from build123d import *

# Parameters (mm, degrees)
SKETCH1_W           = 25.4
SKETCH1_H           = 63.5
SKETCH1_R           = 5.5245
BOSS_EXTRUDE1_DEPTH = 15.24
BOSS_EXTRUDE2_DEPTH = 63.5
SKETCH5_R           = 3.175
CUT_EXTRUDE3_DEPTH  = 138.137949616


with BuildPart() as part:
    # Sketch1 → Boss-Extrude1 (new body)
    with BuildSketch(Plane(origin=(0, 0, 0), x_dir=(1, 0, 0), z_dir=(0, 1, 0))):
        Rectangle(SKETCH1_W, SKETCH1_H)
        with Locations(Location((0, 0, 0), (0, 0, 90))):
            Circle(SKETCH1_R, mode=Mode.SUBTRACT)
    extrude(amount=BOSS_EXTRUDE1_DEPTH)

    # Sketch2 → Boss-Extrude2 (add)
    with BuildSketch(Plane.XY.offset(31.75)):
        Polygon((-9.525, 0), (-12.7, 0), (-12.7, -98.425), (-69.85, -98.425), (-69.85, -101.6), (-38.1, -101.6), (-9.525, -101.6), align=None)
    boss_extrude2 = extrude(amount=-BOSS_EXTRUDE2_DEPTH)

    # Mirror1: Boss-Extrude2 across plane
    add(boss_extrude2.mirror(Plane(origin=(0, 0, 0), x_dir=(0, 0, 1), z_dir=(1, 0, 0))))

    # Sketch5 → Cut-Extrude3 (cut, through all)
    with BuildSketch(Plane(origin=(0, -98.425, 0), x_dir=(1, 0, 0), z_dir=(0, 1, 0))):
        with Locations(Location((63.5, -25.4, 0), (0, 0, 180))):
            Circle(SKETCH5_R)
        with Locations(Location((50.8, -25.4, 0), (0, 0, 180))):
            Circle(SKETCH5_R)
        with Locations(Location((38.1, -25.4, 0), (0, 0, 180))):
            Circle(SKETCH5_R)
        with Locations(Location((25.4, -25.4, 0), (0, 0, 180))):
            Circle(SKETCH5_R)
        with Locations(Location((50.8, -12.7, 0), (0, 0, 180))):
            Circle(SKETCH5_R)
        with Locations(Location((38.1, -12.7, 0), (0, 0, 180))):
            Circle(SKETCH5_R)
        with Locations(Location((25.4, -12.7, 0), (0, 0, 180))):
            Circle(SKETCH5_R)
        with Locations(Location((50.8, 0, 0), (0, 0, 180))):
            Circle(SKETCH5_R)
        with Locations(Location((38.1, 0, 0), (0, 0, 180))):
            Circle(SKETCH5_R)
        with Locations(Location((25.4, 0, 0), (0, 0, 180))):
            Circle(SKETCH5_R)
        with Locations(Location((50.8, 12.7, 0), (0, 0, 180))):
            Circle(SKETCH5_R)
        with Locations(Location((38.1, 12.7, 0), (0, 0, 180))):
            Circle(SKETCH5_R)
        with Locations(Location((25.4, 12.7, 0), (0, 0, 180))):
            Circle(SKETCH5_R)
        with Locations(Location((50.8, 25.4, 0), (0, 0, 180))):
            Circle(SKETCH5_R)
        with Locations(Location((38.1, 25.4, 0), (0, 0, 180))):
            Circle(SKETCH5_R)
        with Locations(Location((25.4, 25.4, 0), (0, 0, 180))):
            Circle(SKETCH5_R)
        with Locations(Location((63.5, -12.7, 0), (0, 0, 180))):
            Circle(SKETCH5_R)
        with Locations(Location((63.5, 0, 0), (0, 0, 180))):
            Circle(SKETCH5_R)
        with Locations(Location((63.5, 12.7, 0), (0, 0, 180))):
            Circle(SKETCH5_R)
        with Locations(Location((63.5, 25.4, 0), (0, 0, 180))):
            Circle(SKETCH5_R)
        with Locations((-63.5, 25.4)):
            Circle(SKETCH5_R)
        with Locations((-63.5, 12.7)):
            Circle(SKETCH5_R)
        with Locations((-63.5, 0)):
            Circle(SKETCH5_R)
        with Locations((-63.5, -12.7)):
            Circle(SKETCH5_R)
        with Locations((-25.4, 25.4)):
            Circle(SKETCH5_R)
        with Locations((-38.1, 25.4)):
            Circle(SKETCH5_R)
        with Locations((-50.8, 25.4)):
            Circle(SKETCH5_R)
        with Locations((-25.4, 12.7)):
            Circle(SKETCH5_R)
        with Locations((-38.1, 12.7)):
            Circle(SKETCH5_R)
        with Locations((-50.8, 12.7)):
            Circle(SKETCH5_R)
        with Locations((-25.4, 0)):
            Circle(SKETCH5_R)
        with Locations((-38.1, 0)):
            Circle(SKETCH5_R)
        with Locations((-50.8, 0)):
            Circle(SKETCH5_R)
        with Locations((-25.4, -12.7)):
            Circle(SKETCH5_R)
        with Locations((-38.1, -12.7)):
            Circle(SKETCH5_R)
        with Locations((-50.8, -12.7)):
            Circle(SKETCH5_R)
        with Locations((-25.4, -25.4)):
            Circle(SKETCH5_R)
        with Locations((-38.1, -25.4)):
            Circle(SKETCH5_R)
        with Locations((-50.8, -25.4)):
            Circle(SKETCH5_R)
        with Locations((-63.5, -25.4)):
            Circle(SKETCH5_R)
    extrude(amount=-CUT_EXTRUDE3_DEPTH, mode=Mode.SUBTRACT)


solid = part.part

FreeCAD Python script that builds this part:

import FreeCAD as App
import Part
import Sketcher
Q = App.Units.Quantity

doc = App.newDocument("Part")
body = doc.addObject("PartDesign::Body", "Body")

sketch1 = doc.addObject("Sketcher::SketchObject", "Sketch")
body.addObject(sketch1)
sketch1.AttachmentSupport = (doc.XZ_Plane, [""])
sketch1.MapMode = "FlatFace"
sketch1.addGeometry(Part.LineSegment(App.Vector(-12.7, -31.75, 0), App.Vector(-12.7, 31.75, 0)), False)
sketch1.addGeometry(Part.LineSegment(App.Vector(-12.7, 31.75, 0), App.Vector(12.7, 31.75, 0)), False)
sketch1.addGeometry(Part.LineSegment(App.Vector(12.7, 31.75, 0), App.Vector(12.7, -31.75, 0)), False)
sketch1.addGeometry(Part.LineSegment(App.Vector(12.7, -31.75, 0), App.Vector(-12.7, -31.75, 0)), False)
sketch1.addGeometry(Part.Circle(App.Vector(0, 0, 0), App.Vector(0, 0, 1), 5.5245), False)
sketch1.addConstraint(Sketcher.Constraint("Coincident", 0, 2, 1, 1))
sketch1.addConstraint(Sketcher.Constraint("Coincident", 1, 2, 2, 1))
sketch1.addConstraint(Sketcher.Constraint("Coincident", 2, 2, 3, 1))
sketch1.addConstraint(Sketcher.Constraint("Coincident", 3, 2, 0, 1))
sketch1.addConstraint(Sketcher.Constraint("Vertical", 0))
sketch1.addConstraint(Sketcher.Constraint("Horizontal", 1))
sketch1.addConstraint(Sketcher.Constraint("Vertical", 2))
sketch1.addConstraint(Sketcher.Constraint("Horizontal", 3))
sketch1.addConstraint(Sketcher.Constraint("Coincident", 4, 3, -1, 1))
sketch1.addConstraint(Sketcher.Constraint("Symmetric", 0, 2, 2, 2, -1, 1))
sketch1.addConstraint(Sketcher.Constraint("DistanceX", 1, 1, 1, 2, Q("1 in")))
sketch1.addConstraint(Sketcher.Constraint("Diameter", 4, Q("0.435 in")))
sketch1.addConstraint(Sketcher.Constraint("DistanceY", 0, 1, 0, 2, Q("2.5 in")))
pad1 = doc.addObject("PartDesign::Pad", "Pad")
body.addObject(pad1)
pad1.Profile = sketch1
pad1.Length = Q("0.6 in")
pad1.Reversed = True

sketch2 = doc.addObject("Sketcher::SketchObject", "Sketch001")
body.addObject(sketch2)
sketch2.AttachmentSupport = (doc.XY_Plane, [""])
sketch2.MapMode = "FlatFace"
sketch2.AttachmentOffset = App.Placement(App.Vector(0, 0, 1.25 * 25.4), App.Rotation())
sketch2.addGeometry(Part.LineSegment(App.Vector(-9.525, 0, 0), App.Vector(-12.7, 0, 0)), False)
sketch2.addGeometry(Part.LineSegment(App.Vector(-12.7, 0, 0), App.Vector(-12.7, -98.425, 0)), False)
sketch2.addGeometry(Part.LineSegment(App.Vector(-12.7, -98.425, 0), App.Vector(-69.85, -98.425, 0)), False)
sketch2.addGeometry(Part.LineSegment(App.Vector(-69.85, -98.425, 0), App.Vector(-69.85, -101.6, 0)), False)
sketch2.addGeometry(Part.LineSegment(App.Vector(-69.85, -101.6, 0), App.Vector(-9.525, -101.6, 0)), False)
sketch2.addGeometry(Part.LineSegment(App.Vector(-9.525, -101.6, 0), App.Vector(-9.525, 0, 0)), False)
sketch2.addConstraint(Sketcher.Constraint("Coincident", 0, 2, 1, 1))
sketch2.addConstraint(Sketcher.Constraint("Coincident", 1, 2, 2, 1))
sketch2.addConstraint(Sketcher.Constraint("Coincident", 2, 2, 3, 1))
sketch2.addConstraint(Sketcher.Constraint("Coincident", 3, 2, 4, 1))
sketch2.addConstraint(Sketcher.Constraint("Coincident", 4, 2, 5, 1))
sketch2.addConstraint(Sketcher.Constraint("Coincident", 5, 2, 0, 1))
sketch2.addConstraint(Sketcher.Constraint("Horizontal", 0))
sketch2.addConstraint(Sketcher.Constraint("Vertical", 1))
sketch2.addConstraint(Sketcher.Constraint("Horizontal", 2))
sketch2.addConstraint(Sketcher.Constraint("Vertical", 3))
sketch2.addConstraint(Sketcher.Constraint("Horizontal", 4))
sketch2.addConstraint(Sketcher.Constraint("Vertical", 5))
sketch2.addConstraint(Sketcher.Constraint("PointOnObject", 0, 2, -1))
sketch2.addConstraint(Sketcher.Constraint("Equal", 0, 3))
sketch2.addConstraint(Sketcher.Constraint("DistanceY", 5, 1, 5, 2, Q("4 in")))
sketch2.addConstraint(Sketcher.Constraint("DistanceX", 2, 2, 2, 1, Q("2.25 in")))
sketch2.addConstraint(Sketcher.Constraint("DistanceX", 0, 2, -1, 1, Q("0.5 in")))
sketch2.addConstraint(Sketcher.Constraint("DistanceX", 0, 2, 0, 1, Q("0.125 in")))
pad2 = doc.addObject("PartDesign::Pad", "Pad001")
body.addObject(pad2)
pad2.Profile = sketch2
pad2.Length = Q("2.5 in")
pad2.Reversed = True
doc.recompute()

mirrored = doc.addObject("PartDesign::Mirrored", "Mirrored")
body.addObject(mirrored)
mirrored.Originals = [pad2]
mirrored.MirrorPlane = (doc.YZ_Plane, [""])
body.Tip = mirrored

sketch3 = doc.addObject("Sketcher::SketchObject", "Sketch002")
body.addObject(sketch3)
sketch3.AttachmentSupport = (doc.XZ_Plane, [""])
sketch3.MapMode = "FlatFace"
sketch3.AttachmentOffset = App.Placement(App.Vector(0, 0, 3.875 * 25.4), App.Rotation())
sketch3.addGeometry(Part.Circle(App.Vector(63.5, 25.4, 0), App.Vector(0, 0, 1), 3.175), False)
sketch3.addGeometry(Part.Circle(App.Vector(50.8, 25.4, 0), App.Vector(0, 0, 1), 3.175), False)
sketch3.addGeometry(Part.Circle(App.Vector(38.1, 25.4, 0), App.Vector(0, 0, 1), 3.175), False)
sketch3.addGeometry(Part.Circle(App.Vector(25.4, 25.4, 0), App.Vector(0, 0, 1), 3.175), False)
sketch3.addGeometry(Part.Circle(App.Vector(50.8, 12.7, 0), App.Vector(0, 0, 1), 3.175), False)
sketch3.addGeometry(Part.Circle(App.Vector(38.1, 12.7, 0), App.Vector(0, 0, 1), 3.175), False)
sketch3.addGeometry(Part.Circle(App.Vector(25.4, 12.7, 0), App.Vector(0, 0, 1), 3.175), False)
sketch3.addGeometry(Part.Circle(App.Vector(50.8, 0, 0), App.Vector(0, 0, 1), 3.175), False)
sketch3.addGeometry(Part.Circle(App.Vector(38.1, 0, 0), App.Vector(0, 0, 1), 3.175), False)
sketch3.addGeometry(Part.Circle(App.Vector(25.4, 0, 0), App.Vector(0, 0, 1), 3.175), False)
sketch3.addGeometry(Part.Circle(App.Vector(50.8, -12.7, 0), App.Vector(0, 0, 1), 3.175), False)
sketch3.addGeometry(Part.Circle(App.Vector(38.1, -12.7, 0), App.Vector(0, 0, 1), 3.175), False)
sketch3.addGeometry(Part.Circle(App.Vector(25.4, -12.7, 0), App.Vector(0, 0, 1), 3.175), False)
sketch3.addGeometry(Part.Circle(App.Vector(50.8, -25.4, 0), App.Vector(0, 0, 1), 3.175), False)
sketch3.addGeometry(Part.Circle(App.Vector(38.1, -25.4, 0), App.Vector(0, 0, 1), 3.175), False)
sketch3.addGeometry(Part.Circle(App.Vector(25.4, -25.4, 0), App.Vector(0, 0, 1), 3.175), False)
sketch3.addGeometry(Part.Circle(App.Vector(63.5, 12.7, 0), App.Vector(0, 0, 1), 3.175), False)
sketch3.addGeometry(Part.Circle(App.Vector(63.5, 0, 0), App.Vector(0, 0, 1), 3.175), False)
sketch3.addGeometry(Part.Circle(App.Vector(63.5, -12.7, 0), App.Vector(0, 0, 1), 3.175), False)
sketch3.addGeometry(Part.Circle(App.Vector(63.5, -25.4, 0), App.Vector(0, 0, 1), 3.175), False)
sketch3.addGeometry(Part.Circle(App.Vector(-63.5, -25.4, 0), App.Vector(0, 0, 1), 3.175), False)
sketch3.addGeometry(Part.Circle(App.Vector(-63.5, -12.7, 0), App.Vector(0, 0, 1), 3.175), False)
sketch3.addGeometry(Part.Circle(App.Vector(-63.5, 0, 0), App.Vector(0, 0, 1), 3.175), False)
sketch3.addGeometry(Part.Circle(App.Vector(-63.5, 12.7, 0), App.Vector(0, 0, 1), 3.175), False)
sketch3.addGeometry(Part.Circle(App.Vector(-25.4, -25.4, 0), App.Vector(0, 0, 1), 3.175), False)
sketch3.addGeometry(Part.Circle(App.Vector(-38.1, -25.4, 0), App.Vector(0, 0, 1), 3.175), False)
sketch3.addGeometry(Part.Circle(App.Vector(-50.8, -25.4, 0), App.Vector(0, 0, 1), 3.175), False)
sketch3.addGeometry(Part.Circle(App.Vector(-25.4, -12.7, 0), App.Vector(0, 0, 1), 3.175), False)
sketch3.addGeometry(Part.Circle(App.Vector(-38.1, -12.7, 0), App.Vector(0, 0, 1), 3.175), False)
sketch3.addGeometry(Part.Circle(App.Vector(-50.8, -12.7, 0), App.Vector(0, 0, 1), 3.175), False)
sketch3.addGeometry(Part.Circle(App.Vector(-25.4, 0, 0), App.Vector(0, 0, 1), 3.175), False)
sketch3.addGeometry(Part.Circle(App.Vector(-38.1, 0, 0), App.Vector(0, 0, 1), 3.175), False)
sketch3.addGeometry(Part.Circle(App.Vector(-50.8, 0, 0), App.Vector(0, 0, 1), 3.175), False)
sketch3.addGeometry(Part.Circle(App.Vector(-25.4, 12.7, 0), App.Vector(0, 0, 1), 3.175), False)
sketch3.addGeometry(Part.Circle(App.Vector(-38.1, 12.7, 0), App.Vector(0, 0, 1), 3.175), False)
sketch3.addGeometry(Part.Circle(App.Vector(-50.8, 12.7, 0), App.Vector(0, 0, 1), 3.175), False)
sketch3.addGeometry(Part.Circle(App.Vector(-25.4, 25.4, 0), App.Vector(0, 0, 1), 3.175), False)
sketch3.addGeometry(Part.Circle(App.Vector(-38.1, 25.4, 0), App.Vector(0, 0, 1), 3.175), False)
sketch3.addGeometry(Part.Circle(App.Vector(-50.8, 25.4, 0), App.Vector(0, 0, 1), 3.175), False)
sketch3.addGeometry(Part.Circle(App.Vector(-63.5, 25.4, 0), App.Vector(0, 0, 1), 3.175), False)
sketch3.addConstraint(Sketcher.Constraint("Equal", 0, 1))
sketch3.addConstraint(Sketcher.Constraint("Equal", 1, 2))
sketch3.addConstraint(Sketcher.Constraint("Equal", 2, 3))
sketch3.addConstraint(Sketcher.Constraint("Equal", 3, 4))
sketch3.addConstraint(Sketcher.Constraint("Equal", 4, 5))
sketch3.addConstraint(Sketcher.Constraint("Equal", 5, 6))
sketch3.addConstraint(Sketcher.Constraint("Equal", 6, 7))
sketch3.addConstraint(Sketcher.Constraint("Equal", 7, 8))
sketch3.addConstraint(Sketcher.Constraint("Equal", 8, 9))
sketch3.addConstraint(Sketcher.Constraint("Equal", 9, 10))
sketch3.addConstraint(Sketcher.Constraint("Equal", 10, 11))
sketch3.addConstraint(Sketcher.Constraint("Equal", 11, 12))
sketch3.addConstraint(Sketcher.Constraint("Equal", 12, 13))
sketch3.addConstraint(Sketcher.Constraint("Equal", 13, 14))
sketch3.addConstraint(Sketcher.Constraint("Equal", 14, 15))
sketch3.addConstraint(Sketcher.Constraint("Equal", 15, 16))
sketch3.addConstraint(Sketcher.Constraint("Equal", 16, 17))
sketch3.addConstraint(Sketcher.Constraint("Equal", 17, 18))
sketch3.addConstraint(Sketcher.Constraint("Equal", 18, 19))
sketch3.addConstraint(Sketcher.Constraint("Equal", 19, 20))
sketch3.addConstraint(Sketcher.Constraint("Equal", 20, 21))
sketch3.addConstraint(Sketcher.Constraint("Equal", 21, 22))
sketch3.addConstraint(Sketcher.Constraint("Equal", 22, 23))
sketch3.addConstraint(Sketcher.Constraint("Equal", 23, 24))
sketch3.addConstraint(Sketcher.Constraint("Equal", 24, 25))
sketch3.addConstraint(Sketcher.Constraint("Equal", 25, 26))
sketch3.addConstraint(Sketcher.Constraint("Equal", 26, 27))
sketch3.addConstraint(Sketcher.Constraint("Equal", 27, 28))
sketch3.addConstraint(Sketcher.Constraint("Equal", 28, 29))
sketch3.addConstraint(Sketcher.Constraint("Equal", 29, 30))
sketch3.addConstraint(Sketcher.Constraint("Equal", 30, 31))
sketch3.addConstraint(Sketcher.Constraint("Equal", 31, 32))
sketch3.addConstraint(Sketcher.Constraint("Equal", 32, 33))
sketch3.addConstraint(Sketcher.Constraint("Equal", 33, 34))
sketch3.addConstraint(Sketcher.Constraint("Equal", 34, 35))
sketch3.addConstraint(Sketcher.Constraint("Equal", 35, 36))
sketch3.addConstraint(Sketcher.Constraint("Equal", 36, 37))
sketch3.addConstraint(Sketcher.Constraint("Equal", 37, 38))
sketch3.addConstraint(Sketcher.Constraint("Equal", 38, 39))
sketch3.addConstraint(Sketcher.Constraint("Symmetric", 0, 3, 20, 3, -1, 1))
sketch3.addConstraint(Sketcher.Constraint("Symmetric", 16, 3, 21, 3, -1, 1))
sketch3.addConstraint(Sketcher.Constraint("Symmetric", 17, 3, 22, 3, -1, 1))
sketch3.addConstraint(Sketcher.Constraint("Symmetric", 18, 3, 23, 3, -1, 1))
sketch3.addConstraint(Sketcher.Constraint("Symmetric", 3, 3, 24, 3, -1, 1))
sketch3.addConstraint(Sketcher.Constraint("Symmetric", 2, 3, 25, 3, -1, 1))
sketch3.addConstraint(Sketcher.Constraint("Symmetric", 1, 3, 26, 3, -1, 1))
sketch3.addConstraint(Sketcher.Constraint("Symmetric", 6, 3, 27, 3, -1, 1))
sketch3.addConstraint(Sketcher.Constraint("Symmetric", 5, 3, 28, 3, -1, 1))
sketch3.addConstraint(Sketcher.Constraint("Symmetric", 4, 3, 29, 3, -1, 1))
sketch3.addConstraint(Sketcher.Constraint("Symmetric", 9, 3, 30, 3, -1, 1))
sketch3.addConstraint(Sketcher.Constraint("Symmetric", 8, 3, 31, 3, -1, 1))
sketch3.addConstraint(Sketcher.Constraint("Symmetric", 7, 3, 32, 3, -1, 1))
sketch3.addConstraint(Sketcher.Constraint("Symmetric", 12, 3, 33, 3, -1, 1))
sketch3.addConstraint(Sketcher.Constraint("Symmetric", 11, 3, 34, 3, -1, 1))
sketch3.addConstraint(Sketcher.Constraint("Symmetric", 10, 3, 35, 3, -1, 1))
sketch3.addConstraint(Sketcher.Constraint("Symmetric", 15, 3, 36, 3, -1, 1))
sketch3.addConstraint(Sketcher.Constraint("Symmetric", 14, 3, 37, 3, -1, 1))
sketch3.addConstraint(Sketcher.Constraint("Symmetric", 13, 3, 38, 3, -1, 1))
sketch3.addConstraint(Sketcher.Constraint("Symmetric", 19, 3, 39, 3, -1, 1))
sketch3.addConstraint(Sketcher.Constraint("Symmetric", 19, 3, 20, 3, -2))
sketch3.addConstraint(Sketcher.Constraint("Symmetric", 18, 3, 21, 3, -2))
sketch3.addConstraint(Sketcher.Constraint("Symmetric", 15, 3, 24, 3, -2))
sketch3.addConstraint(Sketcher.Constraint("Symmetric", 14, 3, 25, 3, -2))
sketch3.addConstraint(Sketcher.Constraint("Symmetric", 13, 3, 26, 3, -2))
sketch3.addConstraint(Sketcher.Constraint("Symmetric", 12, 3, 27, 3, -2))
sketch3.addConstraint(Sketcher.Constraint("Symmetric", 11, 3, 28, 3, -2))
sketch3.addConstraint(Sketcher.Constraint("Symmetric", 10, 3, 29, 3, -2))
sketch3.addConstraint(Sketcher.Constraint("PointOnObject", 7, 3, -1))
sketch3.addConstraint(Sketcher.Constraint("PointOnObject", 8, 3, -1))
sketch3.addConstraint(Sketcher.Constraint("PointOnObject", 9, 3, -1))
sketch3.addConstraint(Sketcher.Constraint("PointOnObject", 17, 3, -1))
sketch3.addConstraint(Sketcher.Constraint("Horizontal", 0, 3, 1, 3))
sketch3.addConstraint(Sketcher.Constraint("Horizontal", 1, 3, 2, 3))
sketch3.addConstraint(Sketcher.Constraint("Horizontal", 2, 3, 3, 3))
sketch3.addConstraint(Sketcher.Constraint("Horizontal", 4, 3, 5, 3))
sketch3.addConstraint(Sketcher.Constraint("Horizontal", 5, 3, 6, 3))
sketch3.addConstraint(Sketcher.Constraint("Horizontal", 6, 3, 16, 3))
sketch3.addConstraint(Sketcher.Constraint("Vertical", 1, 3, 4, 3))
sketch3.addConstraint(Sketcher.Constraint("Vertical", 2, 3, 5, 3))
sketch3.addConstraint(Sketcher.Constraint("Vertical", 3, 3, 6, 3))
sketch3.addConstraint(Sketcher.Constraint("Vertical", 4, 3, 7, 3))
sketch3.addConstraint(Sketcher.Constraint("Vertical", 5, 3, 8, 3))
sketch3.addConstraint(Sketcher.Constraint("Vertical", 6, 3, 9, 3))
sketch3.addConstraint(Sketcher.Constraint("Vertical", 0, 3, 16, 3))
sketch3.addConstraint(Sketcher.Constraint("Vertical", 16, 3, 17, 3))
sketch3.addConstraint(Sketcher.Constraint("Diameter", 0, Q("0.25 in")))
sketch3.addConstraint(Sketcher.Constraint("DistanceY", -1, 1, 0, 3, Q("1 in")))
sketch3.addConstraint(Sketcher.Constraint("DistanceX", -1, 1, 1, 3, Q("2 in")))
sketch3.addConstraint(Sketcher.Constraint("DistanceX", -1, 1, 3, 3, Q("1 in")))
sketch3.addConstraint(Sketcher.Constraint("DistanceX", 2, 3, 0, 3, Q("1 in")))
sketch3.addConstraint(Sketcher.Constraint("DistanceY", 10, 3, 4, 3, Q("1 in")))
sketch3.addConstraint(Sketcher.Constraint("DistanceX", 20, 3, 14, 3, Q("4 in")))
pocket1 = doc.addObject("PartDesign::Pocket", "Pocket")
body.addObject(pocket1)
pocket1.Profile = sketch3
pocket1.Type = "ThroughAll"
pocket1.Reversed = True

doc.recompute()
